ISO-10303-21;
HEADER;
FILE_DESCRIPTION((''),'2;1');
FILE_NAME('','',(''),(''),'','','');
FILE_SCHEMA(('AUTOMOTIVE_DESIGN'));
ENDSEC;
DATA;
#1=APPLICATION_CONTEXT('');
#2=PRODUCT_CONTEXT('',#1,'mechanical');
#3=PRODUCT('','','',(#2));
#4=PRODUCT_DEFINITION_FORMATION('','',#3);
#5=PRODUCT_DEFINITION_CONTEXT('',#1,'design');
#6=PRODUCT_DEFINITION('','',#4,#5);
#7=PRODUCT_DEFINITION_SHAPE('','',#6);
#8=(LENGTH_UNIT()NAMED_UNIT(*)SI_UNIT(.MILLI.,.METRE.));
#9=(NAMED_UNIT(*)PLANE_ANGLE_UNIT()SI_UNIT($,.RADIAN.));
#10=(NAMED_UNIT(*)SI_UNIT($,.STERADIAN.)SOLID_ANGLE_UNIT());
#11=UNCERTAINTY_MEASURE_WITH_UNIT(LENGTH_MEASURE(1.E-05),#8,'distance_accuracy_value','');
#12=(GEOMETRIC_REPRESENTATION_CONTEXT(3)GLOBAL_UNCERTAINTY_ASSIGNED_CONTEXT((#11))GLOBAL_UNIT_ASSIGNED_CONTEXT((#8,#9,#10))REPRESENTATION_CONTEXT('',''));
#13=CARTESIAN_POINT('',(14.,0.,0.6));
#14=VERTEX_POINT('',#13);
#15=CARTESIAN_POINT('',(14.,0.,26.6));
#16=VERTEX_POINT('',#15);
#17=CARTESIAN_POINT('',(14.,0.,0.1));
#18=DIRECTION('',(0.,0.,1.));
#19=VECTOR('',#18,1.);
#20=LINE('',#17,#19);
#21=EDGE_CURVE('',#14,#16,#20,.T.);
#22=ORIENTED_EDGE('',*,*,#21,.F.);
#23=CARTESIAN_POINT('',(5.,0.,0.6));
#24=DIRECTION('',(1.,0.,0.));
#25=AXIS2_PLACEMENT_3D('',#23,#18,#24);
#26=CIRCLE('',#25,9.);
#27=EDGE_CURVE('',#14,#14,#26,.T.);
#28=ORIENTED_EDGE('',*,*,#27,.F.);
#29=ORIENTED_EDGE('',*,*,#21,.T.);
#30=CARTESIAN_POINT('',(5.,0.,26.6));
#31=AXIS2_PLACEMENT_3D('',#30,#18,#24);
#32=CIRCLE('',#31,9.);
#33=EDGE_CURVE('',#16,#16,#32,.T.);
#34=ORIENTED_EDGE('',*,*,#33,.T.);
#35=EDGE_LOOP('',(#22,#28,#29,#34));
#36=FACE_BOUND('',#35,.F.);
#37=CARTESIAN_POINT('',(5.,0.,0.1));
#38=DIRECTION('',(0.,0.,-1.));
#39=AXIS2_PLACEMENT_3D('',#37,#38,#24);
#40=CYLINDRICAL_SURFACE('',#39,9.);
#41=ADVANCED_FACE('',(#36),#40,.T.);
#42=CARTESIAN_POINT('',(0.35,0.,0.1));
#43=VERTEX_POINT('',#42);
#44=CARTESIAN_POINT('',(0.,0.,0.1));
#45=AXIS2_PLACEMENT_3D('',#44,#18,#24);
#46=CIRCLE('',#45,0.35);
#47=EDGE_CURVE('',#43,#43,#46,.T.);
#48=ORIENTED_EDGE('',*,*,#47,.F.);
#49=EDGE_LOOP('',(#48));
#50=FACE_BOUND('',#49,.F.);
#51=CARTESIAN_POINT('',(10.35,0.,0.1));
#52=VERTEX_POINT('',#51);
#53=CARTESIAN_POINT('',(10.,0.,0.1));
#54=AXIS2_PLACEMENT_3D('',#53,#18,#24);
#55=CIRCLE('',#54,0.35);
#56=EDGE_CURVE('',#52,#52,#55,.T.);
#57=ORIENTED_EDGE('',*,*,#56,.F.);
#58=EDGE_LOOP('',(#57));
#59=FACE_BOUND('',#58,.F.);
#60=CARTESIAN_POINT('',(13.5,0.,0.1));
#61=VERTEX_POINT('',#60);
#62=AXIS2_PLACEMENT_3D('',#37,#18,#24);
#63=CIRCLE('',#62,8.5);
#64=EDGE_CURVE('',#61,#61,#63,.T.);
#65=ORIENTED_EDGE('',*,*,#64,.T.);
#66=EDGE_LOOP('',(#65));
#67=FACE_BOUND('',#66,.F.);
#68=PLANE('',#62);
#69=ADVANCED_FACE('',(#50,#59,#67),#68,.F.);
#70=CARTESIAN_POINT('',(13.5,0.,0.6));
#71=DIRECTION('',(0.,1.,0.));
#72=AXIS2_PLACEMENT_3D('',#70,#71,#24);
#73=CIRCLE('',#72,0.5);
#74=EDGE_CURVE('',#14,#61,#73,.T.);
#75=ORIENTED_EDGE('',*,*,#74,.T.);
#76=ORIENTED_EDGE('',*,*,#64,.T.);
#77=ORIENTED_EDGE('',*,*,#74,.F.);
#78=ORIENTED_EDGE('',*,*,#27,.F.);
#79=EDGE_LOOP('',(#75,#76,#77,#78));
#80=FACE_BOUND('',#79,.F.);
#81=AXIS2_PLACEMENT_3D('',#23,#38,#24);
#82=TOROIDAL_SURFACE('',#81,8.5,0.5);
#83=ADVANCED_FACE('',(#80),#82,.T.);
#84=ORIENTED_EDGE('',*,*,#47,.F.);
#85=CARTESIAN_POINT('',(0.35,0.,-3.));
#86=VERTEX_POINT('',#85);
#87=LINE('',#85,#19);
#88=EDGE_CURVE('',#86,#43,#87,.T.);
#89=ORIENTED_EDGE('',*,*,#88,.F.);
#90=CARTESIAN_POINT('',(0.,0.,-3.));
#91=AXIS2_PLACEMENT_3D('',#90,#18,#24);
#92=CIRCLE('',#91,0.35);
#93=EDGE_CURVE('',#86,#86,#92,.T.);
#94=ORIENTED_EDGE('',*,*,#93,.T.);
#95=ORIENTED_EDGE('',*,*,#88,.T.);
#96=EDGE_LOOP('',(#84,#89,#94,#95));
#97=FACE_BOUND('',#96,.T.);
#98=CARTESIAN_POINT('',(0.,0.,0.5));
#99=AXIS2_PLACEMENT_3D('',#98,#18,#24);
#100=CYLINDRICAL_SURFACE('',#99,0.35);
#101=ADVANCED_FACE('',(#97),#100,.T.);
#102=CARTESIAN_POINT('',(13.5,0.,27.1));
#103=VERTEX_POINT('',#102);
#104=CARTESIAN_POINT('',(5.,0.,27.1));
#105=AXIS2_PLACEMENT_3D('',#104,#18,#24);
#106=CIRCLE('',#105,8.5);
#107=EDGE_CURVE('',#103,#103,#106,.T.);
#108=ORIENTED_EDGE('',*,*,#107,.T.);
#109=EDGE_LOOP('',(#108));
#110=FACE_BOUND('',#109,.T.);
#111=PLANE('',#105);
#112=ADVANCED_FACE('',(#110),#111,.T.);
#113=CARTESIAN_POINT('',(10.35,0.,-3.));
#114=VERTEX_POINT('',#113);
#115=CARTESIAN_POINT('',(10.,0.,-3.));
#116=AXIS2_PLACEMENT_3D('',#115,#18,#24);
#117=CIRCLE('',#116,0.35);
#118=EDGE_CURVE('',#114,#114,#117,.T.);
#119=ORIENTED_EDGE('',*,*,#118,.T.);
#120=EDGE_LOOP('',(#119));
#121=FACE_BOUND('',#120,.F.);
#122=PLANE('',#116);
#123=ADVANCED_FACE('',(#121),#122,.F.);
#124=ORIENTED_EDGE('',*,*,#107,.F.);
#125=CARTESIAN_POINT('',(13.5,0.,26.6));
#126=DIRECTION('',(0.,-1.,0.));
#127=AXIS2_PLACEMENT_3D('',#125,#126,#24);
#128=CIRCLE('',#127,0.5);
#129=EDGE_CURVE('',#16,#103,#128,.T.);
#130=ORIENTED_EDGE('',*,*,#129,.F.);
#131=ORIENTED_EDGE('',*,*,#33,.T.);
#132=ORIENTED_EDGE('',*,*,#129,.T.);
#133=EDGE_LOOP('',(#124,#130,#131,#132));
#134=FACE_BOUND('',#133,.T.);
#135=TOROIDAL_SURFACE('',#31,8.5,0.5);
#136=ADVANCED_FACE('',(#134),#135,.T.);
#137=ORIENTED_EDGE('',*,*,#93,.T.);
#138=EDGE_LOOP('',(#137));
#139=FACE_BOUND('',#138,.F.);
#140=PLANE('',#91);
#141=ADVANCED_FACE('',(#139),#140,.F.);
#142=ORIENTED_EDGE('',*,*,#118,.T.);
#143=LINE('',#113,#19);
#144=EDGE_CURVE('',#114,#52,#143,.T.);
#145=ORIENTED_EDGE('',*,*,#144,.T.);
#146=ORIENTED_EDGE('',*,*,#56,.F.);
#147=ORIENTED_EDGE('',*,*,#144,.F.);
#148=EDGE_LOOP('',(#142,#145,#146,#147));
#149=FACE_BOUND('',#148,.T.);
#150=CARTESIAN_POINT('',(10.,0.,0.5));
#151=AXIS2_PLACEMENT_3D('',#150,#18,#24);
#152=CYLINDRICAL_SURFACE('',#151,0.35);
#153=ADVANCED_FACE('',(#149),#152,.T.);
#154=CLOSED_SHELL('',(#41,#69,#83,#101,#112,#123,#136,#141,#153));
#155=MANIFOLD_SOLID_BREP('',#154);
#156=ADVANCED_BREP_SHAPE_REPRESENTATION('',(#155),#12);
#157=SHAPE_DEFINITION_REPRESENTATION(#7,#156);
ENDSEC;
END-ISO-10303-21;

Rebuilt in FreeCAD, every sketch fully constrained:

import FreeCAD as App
import Part
import Sketcher


def edges_at(feature, points):
    """Names of the edges that pass closest to the given points."""
    edges = feature.Shape.Edges
    near = lambda p: min(range(len(edges)), key=lambda i: edges[i].distToShape(Part.Vertex(*p))[0])
    return sorted({f"Edge{near(p) + 1}" for p in points})

doc = App.newDocument("Part")
body = doc.addObject("PartDesign::Body", "Body")
body.AllowCompound = True

sketch1 = body.newObject("Sketcher::SketchObject", "Sketch")
sketch1.AttachmentSupport = (doc.getObject("XY_Plane"), [""])
sketch1.MapMode = "FlatFace"
sketch1.AttachmentOffset = App.Placement(App.Vector(0, 0, 0.5), App.Rotation())
sketch1.addGeometry(Part.Circle(App.Vector(0, 0, 0), App.Vector(0, 0, 1), 0.35), False)
sketch1.addGeometry(Part.Circle(App.Vector(10, 0, 0), App.Vector(0, 0, 1), 0.35), False)
sketch1.addConstraint(Sketcher.Constraint("Coincident", 0, 3, -1, 1))
sketch1.addConstraint(Sketcher.Constraint("Equal", 0, 1))
sketch1.addConstraint(Sketcher.Constraint("PointOnObject", 1, 3, -1))
sketch1.addConstraint(Sketcher.Constraint("Diameter", 0, 0.7))
sketch1.addConstraint(Sketcher.Constraint("DistanceX", -1, 1, 1, 3, 10.0))
pad1 = body.newObject("PartDesign::Pad", "Pad")
pad1.Profile = sketch1
pad1.Type = "TwoLengths"
pad1.Length = 13.5
pad1.Length2 = 3.5
body2 = doc.addObject("PartDesign::Body", "Body001")

sketch2 = body2.newObject("Sketcher::SketchObject", "Sketch001")
sketch2.AttachmentSupport = (doc.getObject("XY_Plane001"), [""])
sketch2.MapMode = "FlatFace"
sketch2.AttachmentOffset = App.Placement(App.Vector(0, 0, 0.1), App.Rotation())
sketch2.addGeometry(Part.Circle(App.Vector(5, 0, 0), App.Vector(0, 0, 1), 9), False)
sketch2.addConstraint(Sketcher.Constraint("PointOnObject", 0, 3, -1))
sketch2.addConstraint(Sketcher.Constraint("Diameter", 0, 18.0))
sketch2.addConstraint(Sketcher.Constraint("DistanceX", -1, 1, 0, 3, 5.0))
pad2 = body2.newObject("PartDesign::Pad", "Pad001")
pad2.Profile = sketch2
pad2.Length = 27
doc.recompute()

fillet = body2.newObject("PartDesign::Fillet", "Fillet")
fillet.Base = (pad2, edges_at(pad2, [(-4, 0, 0.1), (-4, 0, 27.1)]))
fillet.Radius = 0.5
doc.recompute()

boolean = body2.newObject("PartDesign::Boolean", "Boolean")
boolean.Type = "Fuse"
boolean.addObjects([body])

doc.recompute()
